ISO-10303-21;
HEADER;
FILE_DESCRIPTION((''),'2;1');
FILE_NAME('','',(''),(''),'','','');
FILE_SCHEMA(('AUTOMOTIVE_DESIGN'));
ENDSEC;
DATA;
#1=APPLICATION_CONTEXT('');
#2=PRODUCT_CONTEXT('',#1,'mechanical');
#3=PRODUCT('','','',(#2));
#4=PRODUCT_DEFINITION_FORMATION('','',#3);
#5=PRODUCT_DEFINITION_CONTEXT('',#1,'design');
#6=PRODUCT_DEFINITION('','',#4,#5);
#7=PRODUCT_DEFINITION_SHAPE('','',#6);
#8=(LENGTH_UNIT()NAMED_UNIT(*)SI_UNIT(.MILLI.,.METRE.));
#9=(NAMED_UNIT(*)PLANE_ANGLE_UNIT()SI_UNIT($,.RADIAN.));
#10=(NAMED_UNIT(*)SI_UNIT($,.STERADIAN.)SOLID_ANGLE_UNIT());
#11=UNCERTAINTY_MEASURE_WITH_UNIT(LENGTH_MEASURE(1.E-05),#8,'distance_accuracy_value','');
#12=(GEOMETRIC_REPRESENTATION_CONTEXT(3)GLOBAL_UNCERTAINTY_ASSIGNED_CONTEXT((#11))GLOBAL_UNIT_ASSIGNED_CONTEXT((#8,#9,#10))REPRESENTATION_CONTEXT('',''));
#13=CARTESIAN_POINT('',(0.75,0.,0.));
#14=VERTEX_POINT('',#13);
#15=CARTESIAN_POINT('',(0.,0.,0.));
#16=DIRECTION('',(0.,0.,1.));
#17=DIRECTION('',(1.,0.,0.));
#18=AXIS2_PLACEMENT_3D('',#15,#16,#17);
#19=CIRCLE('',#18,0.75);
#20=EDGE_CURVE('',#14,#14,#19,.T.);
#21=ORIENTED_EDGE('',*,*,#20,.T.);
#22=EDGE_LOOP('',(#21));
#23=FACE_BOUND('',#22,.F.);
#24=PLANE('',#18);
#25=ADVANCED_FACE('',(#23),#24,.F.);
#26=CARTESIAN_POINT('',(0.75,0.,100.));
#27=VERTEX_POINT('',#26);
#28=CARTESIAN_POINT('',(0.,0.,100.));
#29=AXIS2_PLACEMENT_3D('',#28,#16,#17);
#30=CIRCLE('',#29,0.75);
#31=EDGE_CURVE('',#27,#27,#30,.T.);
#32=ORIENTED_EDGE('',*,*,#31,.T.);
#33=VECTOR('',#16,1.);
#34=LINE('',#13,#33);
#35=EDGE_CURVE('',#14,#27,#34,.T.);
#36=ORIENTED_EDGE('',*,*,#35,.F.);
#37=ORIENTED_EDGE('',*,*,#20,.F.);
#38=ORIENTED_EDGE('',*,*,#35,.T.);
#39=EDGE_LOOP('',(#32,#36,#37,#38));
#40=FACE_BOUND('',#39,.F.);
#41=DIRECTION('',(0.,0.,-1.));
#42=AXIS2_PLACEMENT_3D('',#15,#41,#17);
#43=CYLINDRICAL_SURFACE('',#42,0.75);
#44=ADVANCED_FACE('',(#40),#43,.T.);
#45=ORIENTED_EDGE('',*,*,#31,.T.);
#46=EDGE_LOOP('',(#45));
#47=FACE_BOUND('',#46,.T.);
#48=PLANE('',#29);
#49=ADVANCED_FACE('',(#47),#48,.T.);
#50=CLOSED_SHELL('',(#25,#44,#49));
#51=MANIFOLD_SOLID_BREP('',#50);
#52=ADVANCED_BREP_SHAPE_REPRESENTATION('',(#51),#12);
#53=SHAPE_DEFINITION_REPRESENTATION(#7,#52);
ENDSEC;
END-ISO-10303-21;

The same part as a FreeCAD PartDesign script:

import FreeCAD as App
import Part
import Sketcher
from FreeCAD import Vector
Q = App.Units.Quantity

doc = App.newDocument("Part")
body = doc.addObject("PartDesign::Body", "Body")

# Sketch on XY plane
sketch1 = body.newObject("Sketcher::SketchObject", "Sketch")
sketch1.AttachmentSupport = (doc.getObject("XY_Plane"), [""])
sketch1.MapMode = "FlatFace"
sketch1.addGeometry(Part.Circle(Vector(0, 0, 0), Vector(0, 0, 1), 0.75), False)
sketch1.addConstraint([
    Sketcher.Constraint("Coincident", 0, 3, -1, 1),
    Sketcher.Constraint("Diameter", 0, Q("1.5 mm")),
])
pad1 = body.newObject("PartDesign::Pad", "Pad")
pad1.Profile = sketch1
pad1.Length = 100

doc.recompute()
